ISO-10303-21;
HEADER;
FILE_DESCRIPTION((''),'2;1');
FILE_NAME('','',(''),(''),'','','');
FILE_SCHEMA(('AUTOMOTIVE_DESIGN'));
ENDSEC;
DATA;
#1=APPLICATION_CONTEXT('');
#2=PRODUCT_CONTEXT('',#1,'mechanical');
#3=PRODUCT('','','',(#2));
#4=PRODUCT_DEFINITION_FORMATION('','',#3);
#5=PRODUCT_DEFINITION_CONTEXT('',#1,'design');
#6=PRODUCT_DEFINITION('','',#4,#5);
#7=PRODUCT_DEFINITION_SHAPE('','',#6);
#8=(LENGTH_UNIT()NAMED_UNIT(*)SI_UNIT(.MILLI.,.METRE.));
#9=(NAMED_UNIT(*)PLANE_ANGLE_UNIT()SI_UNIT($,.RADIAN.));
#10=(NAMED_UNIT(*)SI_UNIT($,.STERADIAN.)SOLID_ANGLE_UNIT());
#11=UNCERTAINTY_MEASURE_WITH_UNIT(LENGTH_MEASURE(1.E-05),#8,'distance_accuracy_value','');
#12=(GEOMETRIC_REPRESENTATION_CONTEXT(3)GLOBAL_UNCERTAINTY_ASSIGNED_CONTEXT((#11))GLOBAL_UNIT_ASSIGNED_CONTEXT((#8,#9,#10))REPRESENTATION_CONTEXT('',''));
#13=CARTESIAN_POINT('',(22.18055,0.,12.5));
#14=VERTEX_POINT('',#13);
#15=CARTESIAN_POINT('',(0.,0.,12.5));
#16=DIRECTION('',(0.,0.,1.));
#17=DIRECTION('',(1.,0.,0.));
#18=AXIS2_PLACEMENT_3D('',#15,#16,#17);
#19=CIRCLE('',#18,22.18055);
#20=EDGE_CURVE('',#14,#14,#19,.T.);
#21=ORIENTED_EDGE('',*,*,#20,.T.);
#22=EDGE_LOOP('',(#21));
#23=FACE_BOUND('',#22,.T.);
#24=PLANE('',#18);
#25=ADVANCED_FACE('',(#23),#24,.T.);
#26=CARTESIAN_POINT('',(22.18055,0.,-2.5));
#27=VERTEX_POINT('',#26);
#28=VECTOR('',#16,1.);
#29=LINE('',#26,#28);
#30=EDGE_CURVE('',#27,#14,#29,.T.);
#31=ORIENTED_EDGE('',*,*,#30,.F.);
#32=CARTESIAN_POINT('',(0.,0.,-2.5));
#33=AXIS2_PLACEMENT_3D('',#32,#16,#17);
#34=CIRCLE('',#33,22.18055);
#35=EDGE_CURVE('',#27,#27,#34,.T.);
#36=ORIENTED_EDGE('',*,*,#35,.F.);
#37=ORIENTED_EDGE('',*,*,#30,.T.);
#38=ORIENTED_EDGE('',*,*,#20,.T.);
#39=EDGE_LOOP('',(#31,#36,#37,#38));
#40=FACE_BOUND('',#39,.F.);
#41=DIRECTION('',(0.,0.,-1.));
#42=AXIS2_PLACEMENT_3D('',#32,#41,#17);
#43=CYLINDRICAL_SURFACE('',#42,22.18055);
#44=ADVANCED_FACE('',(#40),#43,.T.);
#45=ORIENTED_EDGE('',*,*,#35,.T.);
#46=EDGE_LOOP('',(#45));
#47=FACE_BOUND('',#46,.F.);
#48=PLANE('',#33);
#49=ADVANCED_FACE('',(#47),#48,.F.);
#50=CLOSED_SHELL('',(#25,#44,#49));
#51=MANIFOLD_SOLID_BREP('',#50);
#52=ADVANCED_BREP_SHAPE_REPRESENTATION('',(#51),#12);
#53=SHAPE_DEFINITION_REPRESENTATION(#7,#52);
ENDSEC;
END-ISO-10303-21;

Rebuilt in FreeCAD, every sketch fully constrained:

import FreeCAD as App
import Part
import Sketcher
Q = App.Units.Quantity

doc = App.newDocument("Part")
body = doc.addObject("PartDesign::Body", "Body")

# Sketch on XY plane
sketch1 = body.newObject("Sketcher::SketchObject", "Sketch")
sketch1.AttachmentSupport = (doc.getObject("XY_Plane"), [""])
sketch1.MapMode = "FlatFace"
sketch1.AttachmentOffset = App.Placement(App.Vector(0, 0, -2.5), App.Rotation())
sketch1.addGeometry(Part.Circle(App.Vector(0, 0, 0), App.Vector(0, 0, 1), 22.18055), False)
sketch1.addConstraint(Sketcher.Constraint("Coincident", 0, 3, -1, 1))
sketch1.addConstraint(Sketcher.Constraint("Diameter", 0, Q("44.3611 mm")))
pad1 = body.newObject("PartDesign::Pad", "Pad")
pad1.Profile = sketch1
pad1.Length = 15

doc.recompute()
